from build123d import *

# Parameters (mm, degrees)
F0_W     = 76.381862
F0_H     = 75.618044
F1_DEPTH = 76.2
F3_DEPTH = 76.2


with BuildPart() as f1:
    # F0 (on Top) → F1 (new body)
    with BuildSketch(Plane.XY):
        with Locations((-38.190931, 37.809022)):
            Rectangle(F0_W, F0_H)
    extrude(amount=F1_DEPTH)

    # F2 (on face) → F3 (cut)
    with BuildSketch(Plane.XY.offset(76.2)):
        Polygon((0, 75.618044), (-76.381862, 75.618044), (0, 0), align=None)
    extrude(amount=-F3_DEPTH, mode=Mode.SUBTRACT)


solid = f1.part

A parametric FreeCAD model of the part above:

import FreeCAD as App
import Part
import Sketcher
from FreeCAD import Vector
Q = App.Units.Quantity

doc = App.newDocument("Part")
body = doc.addObject("PartDesign::Body", "Body")

# Sketch on XY plane
sketch1 = body.newObject("Sketcher::SketchObject", "Sketch")
sketch1.AttachmentSupport = (doc.getObject("XY_Plane"), [""])
sketch1.MapMode = "FlatFace"
sketch1.addGeometry([
    Part.LineSegment(Vector(-76, 76, 0), Vector(-76, 0, 0)),
    Part.LineSegment(Vector(-76, 0, 0), Vector(0, 0, 0)),
    Part.LineSegment(Vector(0, 0, 0), Vector(0, 76, 0)),
    Part.LineSegment(Vector(0, 76, 0), Vector(-76, 76, 0)),
], False)
sketch1.addConstraint([
    Sketcher.Constraint("Coincident", 0, 2, 1, 1),
    Sketcher.Constraint("Coincident", 1, 2, 2, 1),
    Sketcher.Constraint("Coincident", 2, 2, 3, 1),
    Sketcher.Constraint("Coincident", 3, 2, 0, 1),
    Sketcher.Constraint("Vertical", 0),
    Sketcher.Constraint("Horizontal", 1),
    Sketcher.Constraint("Vertical", 2),
    Sketcher.Constraint("Horizontal", 3),
    Sketcher.Constraint("Coincident", 1, 2, -1, 1),
    Sketcher.Constraint("DistanceX", 1, 1, 1, 2, 76.381862),
    Sketcher.Constraint("DistanceY", 0, 2, 0, 1, 75.618044),
])
pad1 = body.newObject("PartDesign::Pad", "Pad")
pad1.Profile = sketch1
pad1.Length = Q("3 in")

# Sketch on XY plane
sketch2 = body.newObject("Sketcher::SketchObject", "Sketch001")
sketch2.AttachmentSupport = (doc.getObject("XY_Plane"), [""])
sketch2.MapMode = "FlatFace"
sketch2.AttachmentOffset = App.Placement(Vector(0, 0, 3 * 25.4), App.Rotation())
sketch2.addGeometry([
    Part.LineSegment(Vector(0, 76, 0), Vector(-76, 76, 0)),
    Part.LineSegment(Vector(-76, 76, 0), Vector(0, 0, 0)),
    Part.LineSegment(Vector(0, 0, 0), Vector(0, 76, 0)),
], False)
sketch2.addConstraint([
    Sketcher.Constraint("Coincident", 0, 2, 1, 1),
    Sketcher.Constraint("Coincident", 1, 2, 2, 1),
    Sketcher.Constraint("Coincident", 2, 2, 0, 1),
    Sketcher.Constraint("Horizontal", 0),
    Sketcher.Constraint("Vertical", 2),
    Sketcher.Constraint("Coincident", 1, 2, -1, 1),
    Sketcher.Constraint("DistanceX", 0, 2, 0, 1, 76.381862),
    Sketcher.Constraint("Distance", 1, 107.481521),
])
pocket1 = body.newObject("PartDesign::Pocket", "Pocket")
pocket1.Profile = sketch2
pocket1.Length = Q("3 in")

doc.recompute()
